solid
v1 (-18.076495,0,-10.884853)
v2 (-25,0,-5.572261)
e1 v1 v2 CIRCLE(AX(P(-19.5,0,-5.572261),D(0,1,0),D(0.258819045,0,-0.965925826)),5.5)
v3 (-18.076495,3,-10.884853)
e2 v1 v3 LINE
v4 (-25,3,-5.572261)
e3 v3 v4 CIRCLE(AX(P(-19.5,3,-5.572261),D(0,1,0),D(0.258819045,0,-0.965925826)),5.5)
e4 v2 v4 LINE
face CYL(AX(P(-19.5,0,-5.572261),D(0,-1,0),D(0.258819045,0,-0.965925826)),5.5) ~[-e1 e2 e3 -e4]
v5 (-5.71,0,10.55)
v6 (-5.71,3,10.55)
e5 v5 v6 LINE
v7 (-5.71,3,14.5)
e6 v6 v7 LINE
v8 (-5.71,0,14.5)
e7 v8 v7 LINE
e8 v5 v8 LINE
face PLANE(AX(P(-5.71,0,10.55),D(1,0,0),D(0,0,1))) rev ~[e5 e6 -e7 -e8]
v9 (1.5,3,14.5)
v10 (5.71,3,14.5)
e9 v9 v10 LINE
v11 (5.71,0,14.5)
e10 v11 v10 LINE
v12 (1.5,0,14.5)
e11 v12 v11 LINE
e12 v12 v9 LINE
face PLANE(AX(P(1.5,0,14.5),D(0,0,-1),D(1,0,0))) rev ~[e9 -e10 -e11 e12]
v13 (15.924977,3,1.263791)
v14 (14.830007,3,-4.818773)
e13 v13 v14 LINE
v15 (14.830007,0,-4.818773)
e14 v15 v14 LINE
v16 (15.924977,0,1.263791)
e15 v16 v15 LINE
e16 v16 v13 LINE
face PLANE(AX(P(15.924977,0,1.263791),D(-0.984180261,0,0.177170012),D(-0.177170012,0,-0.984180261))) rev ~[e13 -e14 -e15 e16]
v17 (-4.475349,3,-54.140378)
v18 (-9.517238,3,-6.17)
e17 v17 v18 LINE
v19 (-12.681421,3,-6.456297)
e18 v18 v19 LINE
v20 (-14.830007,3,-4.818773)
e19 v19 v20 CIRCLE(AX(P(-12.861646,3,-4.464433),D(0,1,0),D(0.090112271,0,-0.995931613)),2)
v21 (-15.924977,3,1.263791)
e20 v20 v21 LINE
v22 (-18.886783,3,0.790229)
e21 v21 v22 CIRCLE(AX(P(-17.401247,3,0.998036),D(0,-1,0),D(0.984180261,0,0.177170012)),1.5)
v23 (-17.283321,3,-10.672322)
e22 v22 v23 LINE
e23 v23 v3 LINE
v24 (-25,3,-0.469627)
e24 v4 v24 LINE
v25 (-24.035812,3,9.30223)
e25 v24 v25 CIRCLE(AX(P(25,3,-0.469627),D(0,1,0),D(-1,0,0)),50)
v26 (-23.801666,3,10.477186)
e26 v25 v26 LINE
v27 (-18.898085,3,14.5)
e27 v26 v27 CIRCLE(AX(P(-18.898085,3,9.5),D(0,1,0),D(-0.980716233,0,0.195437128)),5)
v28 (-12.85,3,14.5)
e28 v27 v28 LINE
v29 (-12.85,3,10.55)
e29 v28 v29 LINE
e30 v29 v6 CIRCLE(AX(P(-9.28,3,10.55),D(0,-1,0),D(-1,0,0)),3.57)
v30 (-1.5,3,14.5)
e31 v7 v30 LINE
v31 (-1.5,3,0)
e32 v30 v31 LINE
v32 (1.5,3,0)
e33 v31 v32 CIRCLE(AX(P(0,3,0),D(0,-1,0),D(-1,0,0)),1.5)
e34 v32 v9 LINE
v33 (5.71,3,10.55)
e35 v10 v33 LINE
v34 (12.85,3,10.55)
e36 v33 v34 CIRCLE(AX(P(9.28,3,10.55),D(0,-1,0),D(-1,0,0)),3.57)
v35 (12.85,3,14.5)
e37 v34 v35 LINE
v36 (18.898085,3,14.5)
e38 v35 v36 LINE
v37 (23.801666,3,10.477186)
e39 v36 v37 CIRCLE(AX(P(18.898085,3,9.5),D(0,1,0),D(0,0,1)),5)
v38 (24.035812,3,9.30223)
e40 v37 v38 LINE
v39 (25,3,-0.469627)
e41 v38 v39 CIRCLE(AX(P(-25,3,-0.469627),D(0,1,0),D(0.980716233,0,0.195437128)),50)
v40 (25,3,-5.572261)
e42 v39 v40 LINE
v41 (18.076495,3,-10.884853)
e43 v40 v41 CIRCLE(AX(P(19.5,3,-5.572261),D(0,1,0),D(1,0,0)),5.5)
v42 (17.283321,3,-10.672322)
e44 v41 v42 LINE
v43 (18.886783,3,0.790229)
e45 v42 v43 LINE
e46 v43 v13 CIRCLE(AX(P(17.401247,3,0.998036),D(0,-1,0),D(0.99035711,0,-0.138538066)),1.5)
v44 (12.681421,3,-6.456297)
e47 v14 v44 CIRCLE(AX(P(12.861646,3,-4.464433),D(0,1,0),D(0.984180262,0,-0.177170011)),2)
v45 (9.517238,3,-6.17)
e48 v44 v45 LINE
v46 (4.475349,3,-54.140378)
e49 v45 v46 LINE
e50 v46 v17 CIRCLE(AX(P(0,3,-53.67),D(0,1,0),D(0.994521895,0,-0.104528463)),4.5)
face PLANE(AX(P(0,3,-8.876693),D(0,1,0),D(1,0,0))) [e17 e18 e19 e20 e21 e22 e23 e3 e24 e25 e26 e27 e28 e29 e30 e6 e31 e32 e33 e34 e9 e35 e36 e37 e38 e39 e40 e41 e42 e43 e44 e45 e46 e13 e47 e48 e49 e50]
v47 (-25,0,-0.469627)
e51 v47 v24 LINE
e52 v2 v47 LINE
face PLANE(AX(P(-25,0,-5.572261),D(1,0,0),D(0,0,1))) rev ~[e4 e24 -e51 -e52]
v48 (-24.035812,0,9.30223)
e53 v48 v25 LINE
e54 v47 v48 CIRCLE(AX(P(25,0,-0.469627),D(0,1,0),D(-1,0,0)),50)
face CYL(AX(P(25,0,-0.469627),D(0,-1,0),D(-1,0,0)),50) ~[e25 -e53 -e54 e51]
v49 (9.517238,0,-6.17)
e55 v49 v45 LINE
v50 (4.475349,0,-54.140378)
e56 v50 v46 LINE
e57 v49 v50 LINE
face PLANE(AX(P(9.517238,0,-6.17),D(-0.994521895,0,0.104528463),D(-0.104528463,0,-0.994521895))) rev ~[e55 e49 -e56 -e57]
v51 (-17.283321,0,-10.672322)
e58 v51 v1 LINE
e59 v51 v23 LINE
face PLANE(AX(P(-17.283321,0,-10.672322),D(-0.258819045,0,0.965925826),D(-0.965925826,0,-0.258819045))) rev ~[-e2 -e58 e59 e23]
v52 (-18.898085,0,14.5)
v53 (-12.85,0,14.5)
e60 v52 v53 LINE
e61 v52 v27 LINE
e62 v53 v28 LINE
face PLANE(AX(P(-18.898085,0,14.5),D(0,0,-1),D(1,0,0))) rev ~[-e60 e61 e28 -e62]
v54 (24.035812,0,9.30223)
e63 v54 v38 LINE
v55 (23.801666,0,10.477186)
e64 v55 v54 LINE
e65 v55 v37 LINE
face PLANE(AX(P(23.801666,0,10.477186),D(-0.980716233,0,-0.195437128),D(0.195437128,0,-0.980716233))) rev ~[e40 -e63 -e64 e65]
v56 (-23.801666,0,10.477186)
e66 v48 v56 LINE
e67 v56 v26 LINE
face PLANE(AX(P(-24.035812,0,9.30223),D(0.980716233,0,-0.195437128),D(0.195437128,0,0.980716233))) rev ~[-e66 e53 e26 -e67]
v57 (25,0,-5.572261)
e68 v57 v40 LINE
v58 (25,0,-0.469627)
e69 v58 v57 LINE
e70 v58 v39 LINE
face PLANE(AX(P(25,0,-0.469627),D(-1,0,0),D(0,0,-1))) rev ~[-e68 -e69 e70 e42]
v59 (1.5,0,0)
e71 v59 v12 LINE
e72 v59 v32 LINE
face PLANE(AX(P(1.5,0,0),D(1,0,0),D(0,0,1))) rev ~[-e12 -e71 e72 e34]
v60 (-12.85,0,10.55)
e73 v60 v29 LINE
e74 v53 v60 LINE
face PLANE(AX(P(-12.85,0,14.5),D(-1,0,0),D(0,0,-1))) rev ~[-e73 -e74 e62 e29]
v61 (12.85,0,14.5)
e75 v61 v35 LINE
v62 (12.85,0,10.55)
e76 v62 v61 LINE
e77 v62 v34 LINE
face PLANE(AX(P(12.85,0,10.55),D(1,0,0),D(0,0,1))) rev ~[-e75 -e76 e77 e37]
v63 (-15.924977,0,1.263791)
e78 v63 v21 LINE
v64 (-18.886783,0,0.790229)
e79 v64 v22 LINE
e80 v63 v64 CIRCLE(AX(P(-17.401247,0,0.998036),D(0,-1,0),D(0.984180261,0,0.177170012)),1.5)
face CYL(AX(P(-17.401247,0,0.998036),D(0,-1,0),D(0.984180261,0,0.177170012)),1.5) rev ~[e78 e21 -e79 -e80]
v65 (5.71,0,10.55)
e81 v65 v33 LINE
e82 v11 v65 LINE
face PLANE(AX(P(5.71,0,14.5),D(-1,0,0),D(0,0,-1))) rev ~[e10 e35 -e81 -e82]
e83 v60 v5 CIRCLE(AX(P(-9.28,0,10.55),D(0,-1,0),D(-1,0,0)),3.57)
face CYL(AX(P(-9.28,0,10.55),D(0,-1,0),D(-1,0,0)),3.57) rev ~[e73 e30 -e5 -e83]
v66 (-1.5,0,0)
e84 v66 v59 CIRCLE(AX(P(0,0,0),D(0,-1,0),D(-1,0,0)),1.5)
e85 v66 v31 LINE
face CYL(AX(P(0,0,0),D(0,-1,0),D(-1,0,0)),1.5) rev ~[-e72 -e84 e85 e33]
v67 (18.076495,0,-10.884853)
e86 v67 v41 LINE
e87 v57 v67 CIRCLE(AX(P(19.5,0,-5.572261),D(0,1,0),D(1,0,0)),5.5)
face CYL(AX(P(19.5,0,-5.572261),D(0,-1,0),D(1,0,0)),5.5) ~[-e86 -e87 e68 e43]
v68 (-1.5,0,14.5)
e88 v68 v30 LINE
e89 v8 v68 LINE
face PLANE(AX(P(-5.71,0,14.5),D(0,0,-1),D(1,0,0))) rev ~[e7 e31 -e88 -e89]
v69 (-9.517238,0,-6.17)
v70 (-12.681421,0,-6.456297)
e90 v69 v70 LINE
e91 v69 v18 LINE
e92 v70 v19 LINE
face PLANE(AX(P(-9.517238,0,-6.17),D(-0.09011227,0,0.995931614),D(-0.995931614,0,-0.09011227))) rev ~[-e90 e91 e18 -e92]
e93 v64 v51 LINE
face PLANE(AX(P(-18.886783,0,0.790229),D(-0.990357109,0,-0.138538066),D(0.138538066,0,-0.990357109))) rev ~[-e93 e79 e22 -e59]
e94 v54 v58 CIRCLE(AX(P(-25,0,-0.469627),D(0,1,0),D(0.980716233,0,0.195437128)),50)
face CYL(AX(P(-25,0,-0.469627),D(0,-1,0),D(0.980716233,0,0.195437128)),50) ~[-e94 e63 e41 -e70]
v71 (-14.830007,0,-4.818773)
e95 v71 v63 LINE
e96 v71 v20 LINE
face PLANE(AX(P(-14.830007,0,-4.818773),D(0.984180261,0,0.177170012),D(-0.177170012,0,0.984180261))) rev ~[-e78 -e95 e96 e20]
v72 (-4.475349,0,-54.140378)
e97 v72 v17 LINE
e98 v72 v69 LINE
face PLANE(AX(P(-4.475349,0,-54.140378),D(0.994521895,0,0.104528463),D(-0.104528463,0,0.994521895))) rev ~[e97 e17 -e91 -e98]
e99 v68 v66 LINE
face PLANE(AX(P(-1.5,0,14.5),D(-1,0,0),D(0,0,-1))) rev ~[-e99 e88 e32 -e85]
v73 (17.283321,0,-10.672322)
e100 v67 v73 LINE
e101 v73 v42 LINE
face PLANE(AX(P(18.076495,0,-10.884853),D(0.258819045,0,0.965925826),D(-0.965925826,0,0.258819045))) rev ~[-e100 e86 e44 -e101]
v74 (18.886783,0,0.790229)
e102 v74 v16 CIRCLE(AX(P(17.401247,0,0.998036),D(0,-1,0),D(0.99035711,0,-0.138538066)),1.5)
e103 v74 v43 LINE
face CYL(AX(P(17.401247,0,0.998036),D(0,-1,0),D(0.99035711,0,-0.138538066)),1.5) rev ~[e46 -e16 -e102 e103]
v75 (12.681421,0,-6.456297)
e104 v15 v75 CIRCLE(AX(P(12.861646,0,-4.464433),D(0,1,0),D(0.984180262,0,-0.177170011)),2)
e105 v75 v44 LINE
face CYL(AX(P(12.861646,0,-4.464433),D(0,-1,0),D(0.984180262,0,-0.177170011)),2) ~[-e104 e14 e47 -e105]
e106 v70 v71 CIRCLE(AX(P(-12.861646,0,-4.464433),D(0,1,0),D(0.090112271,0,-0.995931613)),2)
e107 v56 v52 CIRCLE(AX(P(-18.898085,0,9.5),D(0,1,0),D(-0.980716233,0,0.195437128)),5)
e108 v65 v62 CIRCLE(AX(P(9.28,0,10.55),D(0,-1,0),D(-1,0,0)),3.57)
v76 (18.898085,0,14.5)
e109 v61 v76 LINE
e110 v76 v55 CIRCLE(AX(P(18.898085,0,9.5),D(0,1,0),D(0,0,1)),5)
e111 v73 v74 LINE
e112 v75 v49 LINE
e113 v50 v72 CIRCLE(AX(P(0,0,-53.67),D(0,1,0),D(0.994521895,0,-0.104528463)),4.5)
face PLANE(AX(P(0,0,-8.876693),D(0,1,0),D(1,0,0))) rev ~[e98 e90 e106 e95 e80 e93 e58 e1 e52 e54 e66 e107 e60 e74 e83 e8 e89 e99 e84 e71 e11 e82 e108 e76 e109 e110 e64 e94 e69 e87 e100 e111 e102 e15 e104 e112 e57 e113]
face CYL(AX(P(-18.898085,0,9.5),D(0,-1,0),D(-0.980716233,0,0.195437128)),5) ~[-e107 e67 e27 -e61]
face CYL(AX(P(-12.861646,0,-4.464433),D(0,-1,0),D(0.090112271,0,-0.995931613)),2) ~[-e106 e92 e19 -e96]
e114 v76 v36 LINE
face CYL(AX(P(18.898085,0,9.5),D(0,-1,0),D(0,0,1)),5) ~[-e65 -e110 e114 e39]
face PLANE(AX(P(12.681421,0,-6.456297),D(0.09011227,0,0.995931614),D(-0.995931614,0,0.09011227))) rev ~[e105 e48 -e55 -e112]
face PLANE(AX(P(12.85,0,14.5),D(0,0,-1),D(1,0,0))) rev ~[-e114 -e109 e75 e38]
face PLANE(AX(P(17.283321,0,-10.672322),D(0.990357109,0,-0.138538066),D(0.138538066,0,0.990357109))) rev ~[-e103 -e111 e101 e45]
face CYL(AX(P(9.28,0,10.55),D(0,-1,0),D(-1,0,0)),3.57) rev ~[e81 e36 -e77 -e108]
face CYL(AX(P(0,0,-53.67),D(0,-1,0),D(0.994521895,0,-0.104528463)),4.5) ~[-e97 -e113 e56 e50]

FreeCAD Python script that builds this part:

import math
import FreeCAD as App
import Part
import Sketcher
from FreeCAD import Vector
Q = App.Units.Quantity

doc = App.newDocument("Part")
body = doc.addObject("PartDesign::Body", "Body")

# Sketch on XZ plane
sketch1 = doc.addObject("Sketcher::SketchObject", "Sketch")
body.addObject(sketch1)
sketch1.AttachmentSupport = (doc.XZ_Plane, [""])
sketch1.MapMode = "FlatFace"
sketch1.addGeometry(Part.LineSegment(Vector(9.5, -6.2, 0), Vector(4.5, -54.1, 0)), False)
sketch1.addGeometry(Part.ArcOfCircle(Part.Circle(Vector(0, -53.7, 0), Vector(0, 0, 1), 4.5), math.radians(-174), math.radians(-6)), False)
sketch1.addGeometry(Part.LineSegment(Vector(-4.5, -54.1, 0), Vector(-9.5, -6.2, 0)), False)
sketch1.addGeometry(Part.LineSegment(Vector(-9.5, -6.2, 0), Vector(-12.7, -6.5, 0)), False)
sketch1.addGeometry(Part.ArcOfCircle(Part.Circle(Vector(-12.9, -4.5, 0), Vector(0, 0, 1), 2), math.radians(-170), math.radians(-85)), False)
sketch1.addGeometry(Part.LineSegment(Vector(-14.8, -4.8, 0), Vector(-15.9, 1.3, 0)), False)
sketch1.addGeometry(Part.ArcOfCircle(Part.Circle(Vector(-17.4, 1, 0), Vector(0, 0, 1), 1.5), math.radians(10), math.radians(188)), False)
sketch1.addGeometry(Part.LineSegment(Vector(-18.9, 0.8, 0), Vector(-17.3, -10.7, 0)), False)
sketch1.addGeometry(Part.LineSegment(Vector(-17.3, -10.7, 0), Vector(-18.1, -10.9, 0)), False)
sketch1.addGeometry(Part.ArcOfCircle(Part.Circle(Vector(-19.5, -5.6, 0), Vector(0, 0, 1), 5.5), math.radians(180), math.radians(285)), False)
sketch1.addGeometry(Part.LineSegment(Vector(-25, -5.6, 0), Vector(-25, -0.5, 0)), False)
sketch1.addGeometry(Part.ArcOfCircle(Part.Circle(Vector(25, -0.5, 0), Vector(0, 0, 1), 50), math.radians(168.73), math.radians(180)), False)
sketch1.addGeometry(Part.LineSegment(Vector(-24, 9.3, 0), Vector(-23.8, 10.5, 0)), False)
sketch1.addGeometry(Part.ArcOfCircle(Part.Circle(Vector(-18.9, 9.5, 0), Vector(0, 0, 1), 5), math.radians(90), math.radians(169)), False)
sketch1.addGeometry(Part.LineSegment(Vector(-18.9, 14.5, 0), Vector(-12.8, 14.5, 0)), False)
sketch1.addGeometry(Part.LineSegment(Vector(-12.8, 14.5, 0), Vector(-12.8, 10.5, 0)), False)
sketch1.addGeometry(Part.ArcOfCircle(Part.Circle(Vector(-9.3, 10.5, 0), Vector(0, 0, 1), 3.6), math.radians(180), math.radians(360)), False)
sketch1.addGeometry(Part.LineSegment(Vector(-5.7, 10.5, 0), Vector(-5.7, 14.5, 0)), False)
sketch1.addGeometry(Part.LineSegment(Vector(-5.7, 14.5, 0), Vector(-1.5, 14.5, 0)), False)
sketch1.addGeometry(Part.LineSegment(Vector(-1.5, 14.5, 0), Vector(-1.5, 0, 0)), False)
sketch1.addGeometry(Part.ArcOfCircle(Part.Circle(Vector(0, 0, 0), Vector(0, 0, 1), 1.5), math.radians(180), math.radians(360)), False)
sketch1.addGeometry(Part.LineSegment(Vector(1.5, 0, 0), Vector(1.5, 14.5, 0)), False)
sketch1.addGeometry(Part.LineSegment(Vector(1.5, 14.5, 0), Vector(5.7, 14.5, 0)), False)
sketch1.addGeometry(Part.LineSegment(Vector(5.7, 14.5, 0), Vector(5.7, 10.5, 0)), False)
sketch1.addGeometry(Part.ArcOfCircle(Part.Circle(Vector(9.3, 10.5, 0), Vector(0, 0, 1), 3.6), math.radians(180), math.radians(360)), False)
sketch1.addGeometry(Part.LineSegment(Vector(12.8, 10.5, 0), Vector(12.8, 14.5, 0)), False)
sketch1.addGeometry(Part.LineSegment(Vector(12.8, 14.5, 0), Vector(18.9, 14.5, 0)), False)
sketch1.addGeometry(Part.ArcOfCircle(Part.Circle(Vector(18.9, 9.5, 0), Vector(0, 0, 1), 5), math.radians(11), math.radians(90)), False)
sketch1.addGeometry(Part.LineSegment(Vector(23.8, 10.5, 0), Vector(24, 9.3, 0)), False)
sketch1.addGeometry(Part.ArcOfCircle(Part.Circle(Vector(-25, -0.5, 0), Vector(0, 0, 1), 50), math.radians(0), math.radians(11.27)), False)
sketch1.addGeometry(Part.LineSegment(Vector(25, -0.5, 0), Vector(25, -5.6, 0)), False)
sketch1.addGeometry(Part.ArcOfCircle(Part.Circle(Vector(19.5, -5.6, 0), Vector(0, 0, 1), 5.5), math.radians(-105), math.radians(0)), False)
sketch1.addGeometry(Part.LineSegment(Vector(18.1, -10.9, 0), Vector(17.3, -10.7, 0)), False)
sketch1.addGeometry(Part.LineSegment(Vector(17.3, -10.7, 0), Vector(18.9, 0.8, 0)), False)
sketch1.addGeometry(Part.ArcOfCircle(Part.Circle(Vector(17.4, 1, 0), Vector(0, 0, 1), 1.5), math.radians(-8), math.radians(170)), False)
sketch1.addGeometry(Part.LineSegment(Vector(15.9, 1.3, 0), Vector(14.8, -4.8, 0)), False)
sketch1.addGeometry(Part.ArcOfCircle(Part.Circle(Vector(12.9, -4.5, 0), Vector(0, 0, 1), 2), math.radians(-95), math.radians(-10)), False)
sketch1.addGeometry(Part.LineSegment(Vector(12.7, -6.5, 0), Vector(9.5, -6.2, 0)), False)
sketch1.addConstraint(Sketcher.Constraint("Tangent", 0, 2, 1, 2))
sketch1.addConstraint(Sketcher.Constraint("Tangent", 1, 1, 2, 1))
sketch1.addConstraint(Sketcher.Constraint("Coincident", 2, 2, 3, 1))
sketch1.addConstraint(Sketcher.Constraint("Tangent", 3, 2, 4, 2))
sketch1.addConstraint(Sketcher.Constraint("Tangent", 4, 1, 5, 1))
sketch1.addConstraint(Sketcher.Constraint("Tangent", 5, 2, 6, 1))
sketch1.addConstraint(Sketcher.Constraint("Tangent", 6, 2, 7, 1))
sketch1.addConstraint(Sketcher.Constraint("Coincident", 7, 2, 8, 1))
sketch1.addConstraint(Sketcher.Constraint("Tangent", 8, 2, 9, 2))
sketch1.addConstraint(Sketcher.Constraint("Tangent", 9, 1, 10, 1))
sketch1.addConstraint(Sketcher.Constraint("Tangent", 10, 2, 11, 2))
sketch1.addConstraint(Sketcher.Constraint("Tangent", 11, 1, 12, 1))
sketch1.addConstraint(Sketcher.Constraint("Tangent", 12, 2, 13, 2))
sketch1.addConstraint(Sketcher.Constraint("Tangent", 13, 1, 14, 1))
sketch1.addConstraint(Sketcher.Constraint("Coincident", 14, 2, 15, 1))
sketch1.addConstraint(Sketcher.Constraint("Tangent", 15, 2, 16, 1))
sketch1.addConstraint(Sketcher.Constraint("Tangent", 16, 2, 17, 1))
sketch1.addConstraint(Sketcher.Constraint("Coincident", 17, 2, 18, 1))
sketch1.addConstraint(Sketcher.Constraint("Coincident", 18, 2, 19, 1))
sketch1.addConstraint(Sketcher.Constraint("Tangent", 19, 2, 20, 1))
sketch1.addConstraint(Sketcher.Constraint("Tangent", 20, 2, 21, 1))
sketch1.addConstraint(Sketcher.Constraint("Coincident", 21, 2, 22, 1))
sketch1.addConstraint(Sketcher.Constraint("Coincident", 22, 2, 23, 1))
sketch1.addConstraint(Sketcher.Constraint("Tangent", 23, 2, 24, 1))
sketch1.addConstraint(Sketcher.Constraint("Tangent", 24, 2, 25, 1))
sketch1.addConstraint(Sketcher.Constraint("Coincident", 25, 2, 26, 1))
sketch1.addConstraint(Sketcher.Constraint("Tangent", 26, 2, 27, 2))
sketch1.addConstraint(Sketcher.Constraint("Tangent", 27, 1, 28, 1))
sketch1.addConstraint(Sketcher.Constraint("Tangent", 28, 2, 29, 2))
sketch1.addConstraint(Sketcher.Constraint("Tangent", 29, 1, 30, 1))
sketch1.addConstraint(Sketcher.Constraint("Tangent", 30, 2, 31, 2))
sketch1.addConstraint(Sketcher.Constraint("Tangent", 31, 1, 32, 1))
sketch1.addConstraint(Sketcher.Constraint("Coincident", 32, 2, 33, 1))
sketch1.addConstraint(Sketcher.Constraint("Tangent", 33, 2, 34, 1))
sketch1.addConstraint(Sketcher.Constraint("Tangent", 34, 2, 35, 1))
sketch1.addConstraint(Sketcher.Constraint("Tangent", 35, 2, 36, 2))
sketch1.addConstraint(Sketcher.Constraint("Tangent", 36, 1, 37, 1))
sketch1.addConstraint(Sketcher.Constraint("Coincident", 37, 2, 0, 1))
sketch1.addConstraint(Sketcher.Constraint("Vertical", 10))
sketch1.addConstraint(Sketcher.Constraint("Horizontal", 14))
sketch1.addConstraint(Sketcher.Constraint("Vertical", 15))
sketch1.addConstraint(Sketcher.Constraint("Vertical", 17))
sketch1.addConstraint(Sketcher.Constraint("Horizontal", 18))
sketch1.addConstraint(Sketcher.Constraint("Vertical", 19))
sketch1.addConstraint(Sketcher.Constraint("Vertical", 21))
sketch1.addConstraint(Sketcher.Constraint("Horizontal", 22))
sketch1.addConstraint(Sketcher.Constraint("Vertical", 23))
sketch1.addConstraint(Sketcher.Constraint("Vertical", 25))
sketch1.addConstraint(Sketcher.Constraint("Horizontal", 26))
sketch1.addConstraint(Sketcher.Constraint("Vertical", 30))
sketch1.addConstraint(Sketcher.Constraint("Coincident", 20, 3, -1, 1))
sketch1.addConstraint(Sketcher.Constraint("Coincident", 10, 2, 29, 3))
sketch1.addConstraint(Sketcher.Constraint("Equal", 6, 20))
sketch1.addConstraint(Sketcher.Constraint("Equal", 16, 24))
sketch1.addConstraint(Sketcher.Constraint("Equal", 13, 27))
sketch1.addConstraint(Sketcher.Constraint("Equal", 11, 29))
sketch1.addConstraint(Sketcher.Constraint("Equal", 9, 31))
sketch1.addConstraint(Sketcher.Constraint("Equal", 20, 34))
sketch1.addConstraint(Sketcher.Constraint("Equal", 4, 36))
sketch1.addConstraint(Sketcher.Constraint("Symmetric", 16, 3, 24, 3, -2))
sketch1.addConstraint(Sketcher.Constraint("Symmetric", 13, 3, 27, 3, -2))
sketch1.addConstraint(Sketcher.Constraint("Symmetric", 9, 3, 31, 3, -2))
sketch1.addConstraint(Sketcher.Constraint("Symmetric", 6, 3, 34, 3, -2))
sketch1.addConstraint(Sketcher.Constraint("Symmetric", 4, 3, 36, 3, -2))
sketch1.addConstraint(Sketcher.Constraint("Symmetric", 0, 2, 1, 1, -2))
sketch1.addConstraint(Sketcher.Constraint("Symmetric", 7, 2, 32, 2, -2))
sketch1.addConstraint(Sketcher.Constraint("Horizontal", 14, 2, 17, 2))
sketch1.addConstraint(Sketcher.Constraint("Horizontal", 18, 2, 21, 2))
sketch1.addConstraint(Sketcher.Constraint("Horizontal", 3, 2, 36, 1))
sketch1.addConstraint(Sketcher.Constraint("Radius", 4, Q("2 mm")))
sketch1.addConstraint(Sketcher.Constraint("Radius", 11, Q("50 mm")))
sketch1.addConstraint(Sketcher.Constraint("Radius", 13, Q("5 mm")))
sketch1.addConstraint(Sketcher.Constraint("Radius", 1, Q("4.5 mm")))
sketch1.addConstraint(Sketcher.Constraint("Radius", 6, Q("1.5 mm")))
sketch1.addConstraint(Sketcher.Constraint("Radius", 9, Q("5.5 mm")))
sketch1.addConstraint(Sketcher.Constraint("Angle", 0, Q("-96 deg")))
sketch1.addConstraint(Sketcher.Constraint("Angle", 8, Q("-165 deg")))
sketch1.addConstraint(Sketcher.Constraint("Radius", 16, Q("3.57 mm")))
sketch1.addConstraint(Sketcher.Constraint("DistanceY", 19, 2, 19, 1, Q("14.5 mm")))
sketch1.addConstraint(Sketcher.Constraint("DistanceX", 18, 1, 18, 2, Q("4.21 mm")))
sketch1.addConstraint(Sketcher.Constraint("DistanceY", 15, 2, 15, 1, Q("3.95 mm")))
sketch1.addConstraint(Sketcher.Constraint("DistanceY", 1, 3, -1, 1, Q("53.67 mm")))
sketch1.addConstraint(Sketcher.Constraint("DistanceY", 2, 2, -1, 1, Q("6.17 mm")))
sketch1.addConstraint(Sketcher.Constraint("DistanceY", 4, 1, 6, 2, Q("5.609002 mm")))
sketch1.addConstraint(Sketcher.Constraint("DistanceY", 6, 2, 11, 1, Q("8.512001 mm")))
sketch1.addConstraint(Sketcher.Constraint("DistanceX", 6, 3, 4, 3, Q("4.539601 mm")))
sketch1.addConstraint(Sketcher.Constraint("DistanceX", 7, 2, 3, 2, Q("4.6019 mm")))
sketch1.addConstraint(Sketcher.Constraint("Distance", 3, Q("3.177109 mm")))
sketch1.addConstraint(Sketcher.Constraint("Distance", 7, Q("11.574159 mm")))
sketch1.addConstraint(Sketcher.Constraint("Distance", 12, Q("1.198059 mm")))
sketch1.addConstraint(Sketcher.Constraint("DistanceX", 14, 1, 14, 2, Q("6.048085 mm")))
pad1 = doc.addObject("PartDesign::Pad", "Pad")
body.addObject(pad1)
pad1.Profile = sketch1
pad1.Length = 3
pad1.Reversed = True

doc.recompute()
